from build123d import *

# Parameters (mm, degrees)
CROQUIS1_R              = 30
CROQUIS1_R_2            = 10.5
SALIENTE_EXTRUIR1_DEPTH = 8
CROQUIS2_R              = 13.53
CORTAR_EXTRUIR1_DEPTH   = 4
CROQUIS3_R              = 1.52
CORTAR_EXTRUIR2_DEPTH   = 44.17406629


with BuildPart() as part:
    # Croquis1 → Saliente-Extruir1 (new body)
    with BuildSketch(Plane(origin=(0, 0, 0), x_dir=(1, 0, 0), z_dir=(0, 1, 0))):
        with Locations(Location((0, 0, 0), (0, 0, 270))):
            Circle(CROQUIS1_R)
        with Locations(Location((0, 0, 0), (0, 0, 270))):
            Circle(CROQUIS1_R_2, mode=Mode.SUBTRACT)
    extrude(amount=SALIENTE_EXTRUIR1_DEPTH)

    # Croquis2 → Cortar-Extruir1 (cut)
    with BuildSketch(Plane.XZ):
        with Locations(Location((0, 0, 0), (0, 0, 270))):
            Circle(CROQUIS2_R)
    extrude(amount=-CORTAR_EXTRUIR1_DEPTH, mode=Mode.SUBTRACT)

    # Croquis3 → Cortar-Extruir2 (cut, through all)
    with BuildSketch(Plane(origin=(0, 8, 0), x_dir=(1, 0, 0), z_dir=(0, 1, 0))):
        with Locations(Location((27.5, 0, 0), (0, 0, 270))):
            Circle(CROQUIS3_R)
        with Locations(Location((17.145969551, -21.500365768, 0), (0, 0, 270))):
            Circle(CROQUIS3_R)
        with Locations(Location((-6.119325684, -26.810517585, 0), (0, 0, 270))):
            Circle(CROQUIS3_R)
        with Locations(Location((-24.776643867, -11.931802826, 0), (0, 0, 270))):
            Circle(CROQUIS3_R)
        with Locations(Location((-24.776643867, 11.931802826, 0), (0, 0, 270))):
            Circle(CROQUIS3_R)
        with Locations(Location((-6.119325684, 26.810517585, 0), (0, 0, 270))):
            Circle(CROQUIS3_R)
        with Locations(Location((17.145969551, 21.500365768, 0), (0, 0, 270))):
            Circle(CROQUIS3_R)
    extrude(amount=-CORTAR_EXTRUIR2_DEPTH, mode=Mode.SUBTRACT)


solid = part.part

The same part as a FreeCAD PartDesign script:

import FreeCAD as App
import Part
import Sketcher

V = App.Vector

doc = App.newDocument("Part")
body = doc.addObject("PartDesign::Body", "Body")

# Sketch on XZ plane
sketch1 = body.newObject("Sketcher::SketchObject", "Sketch")
sketch1.AttachmentSupport = (doc.getObject("XZ_Plane"), [""])
sketch1.MapMode = "FlatFace"
sketch1.addGeometry([
    Part.Circle(V(0, 0, 0), V(0, 0, 1), 30),
    Part.Circle(V(0, 0, 0), V(0, 0, 1), 10.5),
], False)
sketch1.addConstraint([
    Sketcher.Constraint("Coincident", 0, 3, -1, 1),
    Sketcher.Constraint("Coincident", 1, 3, -1, 1),
    Sketcher.Constraint("Diameter", 0, 60.0),
    Sketcher.Constraint("Diameter", 1, 21.0),
])
pad1 = body.newObject("PartDesign::Pad", "Pad")
pad1.Profile = sketch1
pad1.Length = 8
pad1.Reversed = True

# Sketch on XZ plane
sketch2 = body.newObject("Sketcher::SketchObject", "Sketch001")
sketch2.AttachmentSupport = (doc.getObject("XZ_Plane"), [""])
sketch2.MapMode = "FlatFace"
sketch2.addGeometry(Part.Circle(V(0, 0, 0), V(0, 0, 1), 13.53), False)
sketch2.addConstraint([
    Sketcher.Constraint("Coincident", 0, 3, -1, 1),
    Sketcher.Constraint("Diameter", 0, 27.06),
])
pocket1 = body.newObject("PartDesign::Pocket", "Pocket")
pocket1.Profile = sketch2
pocket1.Length = 4

# Sketch on XZ plane
sketch3 = body.newObject("Sketcher::SketchObject", "Sketch002")
sketch3.AttachmentSupport = (doc.getObject("XZ_Plane"), [""])
sketch3.MapMode = "FlatFace"
sketch3.AttachmentOffset = App.Placement(V(0, 0, -8), App.Rotation())
sketch3.addGeometry([
    Part.Circle(V(27.5, 0, 0), V(0, 0, 1), 1.52),  # 0
    Part.Circle(V(17.14597, 21.500366, 0), V(0, 0, 1), 1.52),  # 1
    Part.Circle(V(-6.119326, 26.810518, 0), V(0, 0, 1), 1.52),  # 2
    Part.Circle(V(-24.776644, 11.931803, 0), V(0, 0, 1), 1.52),  # 3
    Part.Circle(V(-24.776644, -11.931803, 0), V(0, 0, 1), 1.52),  # 4
    Part.Circle(V(-6.119326, -26.810518, 0), V(0, 0, 1), 1.52),  # 5
    Part.Circle(V(17.14597, -21.500366, 0), V(0, 0, 1), 1.52),  # 6
], False)
sketch3.addConstraint([
    Sketcher.Constraint("Equal", 0, 1),
    Sketcher.Constraint("Equal", 1, 2),
    Sketcher.Constraint("Equal", 2, 3),
    Sketcher.Constraint("Equal", 3, 4),
    Sketcher.Constraint("Equal", 4, 5),
    Sketcher.Constraint("Equal", 5, 6),
    Sketcher.Constraint("Symmetric", 3, 3, 4, 3, -1),
    Sketcher.Constraint("Symmetric", 2, 3, 5, 3, -1),
    Sketcher.Constraint("Symmetric", 1, 3, 6, 3, -1),
    Sketcher.Constraint("PointOnObject", 0, 3, -1),
    Sketcher.Constraint("Diameter", 0, 3.04),
    Sketcher.Constraint("DistanceX", -1, 1, 0, 3, 27.5),
    Sketcher.Constraint("DistanceX", -1, 1, 1, 3, 17.14597),
    Sketcher.Constraint("DistanceY", 1, 3, 2, 3, 5.310152),
    Sketcher.Constraint("DistanceX", 3, 3, 2, 3, 18.657318),
    Sketcher.Constraint("DistanceY", 4, 3, 2, 3, 38.74232),
    Sketcher.Constraint("DistanceY", 6, 3, 1, 3, 43.000732),
    Sketcher.Constraint("DistanceX", 2, 3, -1, 1, 6.119326),
])
pocket2 = body.newObject("PartDesign::Pocket", "Pocket001")
pocket2.Profile = sketch3
pocket2.Type = "ThroughAll"
pocket2.Reversed = True

doc.recompute()
